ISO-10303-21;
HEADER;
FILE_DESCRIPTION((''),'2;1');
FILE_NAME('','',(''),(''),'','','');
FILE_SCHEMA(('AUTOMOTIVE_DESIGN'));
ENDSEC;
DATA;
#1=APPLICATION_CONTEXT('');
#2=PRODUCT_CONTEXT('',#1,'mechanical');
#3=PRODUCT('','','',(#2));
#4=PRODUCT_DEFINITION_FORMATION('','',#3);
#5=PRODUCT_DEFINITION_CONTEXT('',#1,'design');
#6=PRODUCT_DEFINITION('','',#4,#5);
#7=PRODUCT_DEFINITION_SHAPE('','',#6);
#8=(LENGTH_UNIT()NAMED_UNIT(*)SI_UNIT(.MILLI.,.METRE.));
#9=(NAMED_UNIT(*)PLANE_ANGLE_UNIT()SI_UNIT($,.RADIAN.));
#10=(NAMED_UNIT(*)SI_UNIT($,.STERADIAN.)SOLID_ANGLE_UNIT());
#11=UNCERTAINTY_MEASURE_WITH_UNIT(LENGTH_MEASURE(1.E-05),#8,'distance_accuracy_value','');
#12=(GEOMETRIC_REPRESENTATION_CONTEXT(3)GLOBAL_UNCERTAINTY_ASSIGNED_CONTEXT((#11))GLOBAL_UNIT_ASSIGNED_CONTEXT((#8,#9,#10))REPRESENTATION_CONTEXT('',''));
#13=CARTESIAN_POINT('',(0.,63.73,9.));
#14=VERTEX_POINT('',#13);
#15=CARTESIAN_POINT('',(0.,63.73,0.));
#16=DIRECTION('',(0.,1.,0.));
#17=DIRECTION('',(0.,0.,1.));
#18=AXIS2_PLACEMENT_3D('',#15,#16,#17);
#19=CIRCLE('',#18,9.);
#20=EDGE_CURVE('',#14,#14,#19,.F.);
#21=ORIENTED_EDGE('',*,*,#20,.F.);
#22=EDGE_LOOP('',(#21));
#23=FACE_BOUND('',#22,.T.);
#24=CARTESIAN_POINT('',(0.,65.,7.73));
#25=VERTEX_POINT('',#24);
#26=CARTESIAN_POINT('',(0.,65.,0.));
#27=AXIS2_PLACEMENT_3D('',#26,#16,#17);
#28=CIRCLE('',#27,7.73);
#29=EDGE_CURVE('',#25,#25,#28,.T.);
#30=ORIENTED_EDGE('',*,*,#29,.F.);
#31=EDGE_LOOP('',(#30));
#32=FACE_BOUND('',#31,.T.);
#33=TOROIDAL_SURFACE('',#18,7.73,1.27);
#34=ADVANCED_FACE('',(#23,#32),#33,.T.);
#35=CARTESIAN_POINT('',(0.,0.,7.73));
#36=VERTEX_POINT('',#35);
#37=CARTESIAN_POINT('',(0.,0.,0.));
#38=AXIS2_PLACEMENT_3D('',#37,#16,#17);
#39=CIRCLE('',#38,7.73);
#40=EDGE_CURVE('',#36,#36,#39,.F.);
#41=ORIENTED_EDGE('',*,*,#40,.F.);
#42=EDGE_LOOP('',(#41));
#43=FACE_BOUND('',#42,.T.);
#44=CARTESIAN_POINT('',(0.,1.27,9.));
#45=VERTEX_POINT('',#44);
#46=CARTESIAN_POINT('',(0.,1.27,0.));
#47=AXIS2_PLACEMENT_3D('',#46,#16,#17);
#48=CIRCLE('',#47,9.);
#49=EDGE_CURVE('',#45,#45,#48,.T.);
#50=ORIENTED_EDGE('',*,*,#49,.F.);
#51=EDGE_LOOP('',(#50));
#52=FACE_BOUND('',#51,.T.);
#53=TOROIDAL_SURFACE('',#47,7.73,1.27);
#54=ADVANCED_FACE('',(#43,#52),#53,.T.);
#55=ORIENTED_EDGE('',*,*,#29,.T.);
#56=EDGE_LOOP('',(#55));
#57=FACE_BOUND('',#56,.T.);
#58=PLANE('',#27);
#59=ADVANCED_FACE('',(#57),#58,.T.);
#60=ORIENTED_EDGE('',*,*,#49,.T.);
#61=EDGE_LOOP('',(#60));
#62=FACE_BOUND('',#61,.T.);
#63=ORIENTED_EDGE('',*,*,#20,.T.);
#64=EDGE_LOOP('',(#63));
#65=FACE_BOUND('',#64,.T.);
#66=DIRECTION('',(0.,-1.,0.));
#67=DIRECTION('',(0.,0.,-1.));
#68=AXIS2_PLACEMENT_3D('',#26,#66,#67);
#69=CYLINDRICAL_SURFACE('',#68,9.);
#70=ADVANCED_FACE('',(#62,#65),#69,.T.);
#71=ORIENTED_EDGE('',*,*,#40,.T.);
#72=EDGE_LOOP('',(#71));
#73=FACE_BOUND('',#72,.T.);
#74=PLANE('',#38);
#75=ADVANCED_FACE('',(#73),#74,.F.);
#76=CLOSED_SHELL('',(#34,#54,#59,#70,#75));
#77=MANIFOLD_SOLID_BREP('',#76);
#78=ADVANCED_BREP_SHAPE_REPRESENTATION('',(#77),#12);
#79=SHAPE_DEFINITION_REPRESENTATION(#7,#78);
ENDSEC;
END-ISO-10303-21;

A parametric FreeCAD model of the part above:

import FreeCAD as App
import Part
import Sketcher


def edges_at(feature, points):
    """Names of the edges that pass closest to the given points."""
    edges = feature.Shape.Edges
    near = lambda p: min(range(len(edges)), key=lambda i: edges[i].distToShape(Part.Vertex(*p))[0])
    return sorted({f"Edge{near(p) + 1}" for p in points})

doc = App.newDocument("Part")
params = doc.addObject("Spreadsheet::Sheet", "Params")
for row, (alias, value) in enumerate([
    ("sketch1_diameter", "18 mm"),
    ("pad1_length", "65 mm"),
    ("fillet_radius", "1.27 mm"),
], start=1):
    params.set(f"A{row}", alias)
    params.set(f"B{row}", "=" + value)
    params.setAlias(f"B{row}", alias)

body = doc.addObject("PartDesign::Body", "Body")

sketch1 = body.newObject("Sketcher::SketchObject", "Sketch")
sketch1.AttachmentSupport = (doc.getObject("XZ_Plane"), [""])
sketch1.MapMode = "FlatFace"
sketch1.addGeometry(Part.Circle(App.Vector(0, 0, 0), App.Vector(0, 0, 1), 9), False)
sketch1.addConstraint(Sketcher.Constraint("Coincident", 0, 3, -1, 1))
sketch1.addConstraint(Sketcher.Constraint("Diameter", 0, 18.0))
sketch1.setExpression("Constraints[1]", "Params.sketch1_diameter")
pad1 = body.newObject("PartDesign::Pad", "Pad")
pad1.Profile = sketch1
pad1.setExpression("Length", "Params.pad1_length")
pad1.Reversed = True
doc.recompute()

fillet = body.newObject("PartDesign::Fillet", "Fillet")
fillet.Base = (pad1, edges_at(pad1, [(-9, 0, 0), (-9, 65, 0)]))
fillet.setExpression("Radius", "Params.fillet_radius")

doc.recompute()
